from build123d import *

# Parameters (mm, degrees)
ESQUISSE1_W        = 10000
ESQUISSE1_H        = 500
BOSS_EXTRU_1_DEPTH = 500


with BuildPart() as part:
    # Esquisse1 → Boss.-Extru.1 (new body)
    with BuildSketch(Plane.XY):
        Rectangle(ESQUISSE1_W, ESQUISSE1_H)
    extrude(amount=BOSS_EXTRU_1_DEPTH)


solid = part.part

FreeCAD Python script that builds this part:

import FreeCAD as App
import Part
import Sketcher

V = App.Vector
Q = App.Units.Quantity

doc = App.newDocument("Part")
body = doc.addObject("PartDesign::Body", "Body")

sketch1 = doc.addObject("Sketcher::SketchObject", "Sketch")
body.addObject(sketch1)
sketch1.AttachmentSupport = (doc.XY_Plane, [""])
sketch1.MapMode = "FlatFace"
sketch1.addGeometry([
    Part.LineSegment(V(-5000, 250, 0), V(-5000, -250, 0)),
    Part.LineSegment(V(-5000, -250, 0), V(5000, -250, 0)),
    Part.LineSegment(V(5000, -250, 0), V(5000, 250, 0)),
    Part.LineSegment(V(5000, 250, 0), V(-5000, 250, 0)),
], False)
sketch1.addConstraint([
    Sketcher.Constraint("Coincident", 0, 2, 1, 1),
    Sketcher.Constraint("Coincident", 1, 2, 2, 1),
    Sketcher.Constraint("Coincident", 2, 2, 3, 1),
    Sketcher.Constraint("Coincident", 3, 2, 0, 1),
    Sketcher.Constraint("Vertical", 0),
    Sketcher.Constraint("Horizontal", 1),
    Sketcher.Constraint("Vertical", 2),
    Sketcher.Constraint("Horizontal", 3),
    Sketcher.Constraint("Symmetric", 0, 2, 2, 2, -1, 1),
    Sketcher.Constraint("DistanceX", 1, 1, 1, 2, Q("10000 mm")),
    Sketcher.Constraint("DistanceY", 0, 2, 0, 1, Q("500 mm")),
])
pad1 = doc.addObject("PartDesign::Pad", "Pad")
body.addObject(pad1)
pad1.Profile = sketch1
pad1.Length = 500

doc.recompute()
